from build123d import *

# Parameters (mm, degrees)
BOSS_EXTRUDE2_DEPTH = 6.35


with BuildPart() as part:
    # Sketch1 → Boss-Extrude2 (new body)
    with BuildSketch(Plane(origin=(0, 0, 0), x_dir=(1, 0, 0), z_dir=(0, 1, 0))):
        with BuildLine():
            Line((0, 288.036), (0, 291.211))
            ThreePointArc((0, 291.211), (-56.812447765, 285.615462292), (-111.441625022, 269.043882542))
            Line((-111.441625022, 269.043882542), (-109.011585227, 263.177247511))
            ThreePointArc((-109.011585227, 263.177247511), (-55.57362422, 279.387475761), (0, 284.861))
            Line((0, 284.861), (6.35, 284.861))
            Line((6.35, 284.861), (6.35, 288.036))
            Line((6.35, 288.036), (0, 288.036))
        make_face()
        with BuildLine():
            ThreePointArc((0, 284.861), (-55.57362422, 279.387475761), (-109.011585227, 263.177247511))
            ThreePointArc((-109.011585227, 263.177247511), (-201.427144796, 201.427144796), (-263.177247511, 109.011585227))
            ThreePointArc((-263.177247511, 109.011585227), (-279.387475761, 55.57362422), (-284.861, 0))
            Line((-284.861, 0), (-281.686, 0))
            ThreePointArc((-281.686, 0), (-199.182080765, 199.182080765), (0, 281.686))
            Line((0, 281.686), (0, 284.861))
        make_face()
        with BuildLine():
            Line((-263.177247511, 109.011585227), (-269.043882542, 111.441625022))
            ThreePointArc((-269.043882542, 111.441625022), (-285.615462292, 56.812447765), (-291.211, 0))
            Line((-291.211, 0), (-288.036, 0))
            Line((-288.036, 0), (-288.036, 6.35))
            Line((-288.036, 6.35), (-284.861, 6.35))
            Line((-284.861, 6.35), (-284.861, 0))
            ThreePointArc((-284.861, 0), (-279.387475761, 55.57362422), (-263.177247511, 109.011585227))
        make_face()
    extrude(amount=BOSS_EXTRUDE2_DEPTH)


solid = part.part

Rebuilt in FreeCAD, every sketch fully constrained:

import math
import FreeCAD as App
import Part
import Sketcher

V = App.Vector
Q = App.Units.Quantity

doc = App.newDocument("Part")
body = doc.addObject("PartDesign::Body", "Body")

sketch1 = doc.addObject("Sketcher::SketchObject", "Sketch")
body.addObject(sketch1)
sketch1.AttachmentSupport = (doc.XZ_Plane, [""])
sketch1.MapMode = "FlatFace"
sketch1.addGeometry([
    Part.LineSegment(V(0, -288.036, 0), V(0, -291.211, 0)),
    Part.ArcOfCircle(Part.Circle(V(0, 0, 0), V(0, 0, 1), 291.211), math.radians(-112.5), math.radians(-90)),
    Part.LineSegment(V(-111.441625, -269.043883, 0), V(-109.011585, -263.177248, 0)),
    Part.ArcOfCircle(Part.Circle(V(0, 0, 0), V(0, 0, 1), 284.861), math.radians(-157.5), math.radians(-112.5)),
    Part.LineSegment(V(-263.177248, -109.011585, 0), V(-269.043883, -111.441625, 0)),
    Part.ArcOfCircle(Part.Circle(V(0, 0, 0), V(0, 0, 1), 291.211), math.radians(180), math.radians(202.5)),
    Part.LineSegment(V(-291.211, 0, 0), V(-288.036, 0, 0)),
    Part.LineSegment(V(-288.036, 0, 0), V(-288.036, -6.35, 0)),
    Part.LineSegment(V(-288.036, -6.35, 0), V(-284.861, -6.35, 0)),
    Part.LineSegment(V(-284.861, -6.35, 0), V(-284.861, 0, 0)),
    Part.LineSegment(V(-284.861, 0, 0), V(-281.686, 0, 0)),
    Part.ArcOfCircle(Part.Circle(V(0, 0, 0), V(0, 0, 1), 281.686), math.radians(-180), math.radians(-90)),
    Part.LineSegment(V(0, -281.686, 0), V(0, -284.861, 0)),
    Part.LineSegment(V(0, -284.861, 0), V(6.35, -284.861, 0)),
    Part.LineSegment(V(6.35, -284.861, 0), V(6.35, -288.036, 0)),
    Part.LineSegment(V(6.35, -288.036, 0), V(0, -288.036, 0)),
], False)
sketch1.addConstraint([
    Sketcher.Constraint("Coincident", 0, 2, 1, 2),
    Sketcher.Constraint("Coincident", 1, 1, 2, 1),
    Sketcher.Constraint("Coincident", 2, 2, 3, 2),
    Sketcher.Constraint("Coincident", 3, 1, 4, 1),
    Sketcher.Constraint("Coincident", 4, 2, 5, 2),
    Sketcher.Constraint("Coincident", 5, 1, 6, 1),
    Sketcher.Constraint("Coincident", 6, 2, 7, 1),
    Sketcher.Constraint("Coincident", 7, 2, 8, 1),
    Sketcher.Constraint("Coincident", 8, 2, 9, 1),
    Sketcher.Constraint("Coincident", 9, 2, 10, 1),
    Sketcher.Constraint("Coincident", 10, 2, 11, 1),
    Sketcher.Constraint("Coincident", 11, 2, 12, 1),
    Sketcher.Constraint("Coincident", 12, 2, 13, 1),
    Sketcher.Constraint("Coincident", 13, 2, 14, 1),
    Sketcher.Constraint("Coincident", 14, 2, 15, 1),
    Sketcher.Constraint("Coincident", 15, 2, 0, 1),
    Sketcher.Constraint("Vertical", 0),
    Sketcher.Constraint("Horizontal", 6),
    Sketcher.Constraint("Vertical", 7),
    Sketcher.Constraint("Horizontal", 8),
    Sketcher.Constraint("Vertical", 9),
    Sketcher.Constraint("Horizontal", 10),
    Sketcher.Constraint("Vertical", 12),
    Sketcher.Constraint("Horizontal", 13),
    Sketcher.Constraint("Vertical", 14),
    Sketcher.Constraint("Horizontal", 15),
    Sketcher.Constraint("Coincident", 1, 3, -1, 1),
    Sketcher.Constraint("Coincident", 3, 3, -1, 1),
    Sketcher.Constraint("Coincident", 5, 3, -1, 1),
    Sketcher.Constraint("Coincident", 11, 3, -1, 1),
    Sketcher.Constraint("Equal", 1, 5),
    Sketcher.Constraint("PointOnObject", 0, 2, -2),
    Sketcher.Constraint("PointOnObject", 6, 2, -1),
    Sketcher.Constraint("PointOnObject", 9, 2, -1),
    Sketcher.Constraint("PointOnObject", 11, 2, -2),
    Sketcher.Constraint("Equal", 6, 8),
    Sketcher.Constraint("Equal", 8, 10),
    Sketcher.Constraint("Equal", 10, 0),
    Sketcher.Constraint("Equal", 15, 7),
    Sketcher.Constraint("Equal", 0, 12),
    Sketcher.Constraint("Radius", 11, Q("11.09 in")),
    Sketcher.Constraint("Radius", 1, Q("11.465 in")),
    Sketcher.Constraint("Radius", 3, Q("11.215 in")),
    Sketcher.Constraint("DistanceX", 13, 1, 13, 2, Q("0.25 in")),
    Sketcher.Constraint("Angle", 2, Q("67.5 deg")),
    Sketcher.Constraint("Angle", 4, Q("-157.5 deg")),
    Sketcher.Constraint("DistanceX", 1, 1, -1, 1, Q("111.441625 mm")),
    Sketcher.Constraint("DistanceX", 3, 1, -1, 1, Q("263.177248 mm")),
])
pad1 = doc.addObject("PartDesign::Pad", "Pad")
body.addObject(pad1)
pad1.Profile = sketch1
pad1.Length = Q("0.25 in")
pad1.Reversed = True

doc.recompute()
